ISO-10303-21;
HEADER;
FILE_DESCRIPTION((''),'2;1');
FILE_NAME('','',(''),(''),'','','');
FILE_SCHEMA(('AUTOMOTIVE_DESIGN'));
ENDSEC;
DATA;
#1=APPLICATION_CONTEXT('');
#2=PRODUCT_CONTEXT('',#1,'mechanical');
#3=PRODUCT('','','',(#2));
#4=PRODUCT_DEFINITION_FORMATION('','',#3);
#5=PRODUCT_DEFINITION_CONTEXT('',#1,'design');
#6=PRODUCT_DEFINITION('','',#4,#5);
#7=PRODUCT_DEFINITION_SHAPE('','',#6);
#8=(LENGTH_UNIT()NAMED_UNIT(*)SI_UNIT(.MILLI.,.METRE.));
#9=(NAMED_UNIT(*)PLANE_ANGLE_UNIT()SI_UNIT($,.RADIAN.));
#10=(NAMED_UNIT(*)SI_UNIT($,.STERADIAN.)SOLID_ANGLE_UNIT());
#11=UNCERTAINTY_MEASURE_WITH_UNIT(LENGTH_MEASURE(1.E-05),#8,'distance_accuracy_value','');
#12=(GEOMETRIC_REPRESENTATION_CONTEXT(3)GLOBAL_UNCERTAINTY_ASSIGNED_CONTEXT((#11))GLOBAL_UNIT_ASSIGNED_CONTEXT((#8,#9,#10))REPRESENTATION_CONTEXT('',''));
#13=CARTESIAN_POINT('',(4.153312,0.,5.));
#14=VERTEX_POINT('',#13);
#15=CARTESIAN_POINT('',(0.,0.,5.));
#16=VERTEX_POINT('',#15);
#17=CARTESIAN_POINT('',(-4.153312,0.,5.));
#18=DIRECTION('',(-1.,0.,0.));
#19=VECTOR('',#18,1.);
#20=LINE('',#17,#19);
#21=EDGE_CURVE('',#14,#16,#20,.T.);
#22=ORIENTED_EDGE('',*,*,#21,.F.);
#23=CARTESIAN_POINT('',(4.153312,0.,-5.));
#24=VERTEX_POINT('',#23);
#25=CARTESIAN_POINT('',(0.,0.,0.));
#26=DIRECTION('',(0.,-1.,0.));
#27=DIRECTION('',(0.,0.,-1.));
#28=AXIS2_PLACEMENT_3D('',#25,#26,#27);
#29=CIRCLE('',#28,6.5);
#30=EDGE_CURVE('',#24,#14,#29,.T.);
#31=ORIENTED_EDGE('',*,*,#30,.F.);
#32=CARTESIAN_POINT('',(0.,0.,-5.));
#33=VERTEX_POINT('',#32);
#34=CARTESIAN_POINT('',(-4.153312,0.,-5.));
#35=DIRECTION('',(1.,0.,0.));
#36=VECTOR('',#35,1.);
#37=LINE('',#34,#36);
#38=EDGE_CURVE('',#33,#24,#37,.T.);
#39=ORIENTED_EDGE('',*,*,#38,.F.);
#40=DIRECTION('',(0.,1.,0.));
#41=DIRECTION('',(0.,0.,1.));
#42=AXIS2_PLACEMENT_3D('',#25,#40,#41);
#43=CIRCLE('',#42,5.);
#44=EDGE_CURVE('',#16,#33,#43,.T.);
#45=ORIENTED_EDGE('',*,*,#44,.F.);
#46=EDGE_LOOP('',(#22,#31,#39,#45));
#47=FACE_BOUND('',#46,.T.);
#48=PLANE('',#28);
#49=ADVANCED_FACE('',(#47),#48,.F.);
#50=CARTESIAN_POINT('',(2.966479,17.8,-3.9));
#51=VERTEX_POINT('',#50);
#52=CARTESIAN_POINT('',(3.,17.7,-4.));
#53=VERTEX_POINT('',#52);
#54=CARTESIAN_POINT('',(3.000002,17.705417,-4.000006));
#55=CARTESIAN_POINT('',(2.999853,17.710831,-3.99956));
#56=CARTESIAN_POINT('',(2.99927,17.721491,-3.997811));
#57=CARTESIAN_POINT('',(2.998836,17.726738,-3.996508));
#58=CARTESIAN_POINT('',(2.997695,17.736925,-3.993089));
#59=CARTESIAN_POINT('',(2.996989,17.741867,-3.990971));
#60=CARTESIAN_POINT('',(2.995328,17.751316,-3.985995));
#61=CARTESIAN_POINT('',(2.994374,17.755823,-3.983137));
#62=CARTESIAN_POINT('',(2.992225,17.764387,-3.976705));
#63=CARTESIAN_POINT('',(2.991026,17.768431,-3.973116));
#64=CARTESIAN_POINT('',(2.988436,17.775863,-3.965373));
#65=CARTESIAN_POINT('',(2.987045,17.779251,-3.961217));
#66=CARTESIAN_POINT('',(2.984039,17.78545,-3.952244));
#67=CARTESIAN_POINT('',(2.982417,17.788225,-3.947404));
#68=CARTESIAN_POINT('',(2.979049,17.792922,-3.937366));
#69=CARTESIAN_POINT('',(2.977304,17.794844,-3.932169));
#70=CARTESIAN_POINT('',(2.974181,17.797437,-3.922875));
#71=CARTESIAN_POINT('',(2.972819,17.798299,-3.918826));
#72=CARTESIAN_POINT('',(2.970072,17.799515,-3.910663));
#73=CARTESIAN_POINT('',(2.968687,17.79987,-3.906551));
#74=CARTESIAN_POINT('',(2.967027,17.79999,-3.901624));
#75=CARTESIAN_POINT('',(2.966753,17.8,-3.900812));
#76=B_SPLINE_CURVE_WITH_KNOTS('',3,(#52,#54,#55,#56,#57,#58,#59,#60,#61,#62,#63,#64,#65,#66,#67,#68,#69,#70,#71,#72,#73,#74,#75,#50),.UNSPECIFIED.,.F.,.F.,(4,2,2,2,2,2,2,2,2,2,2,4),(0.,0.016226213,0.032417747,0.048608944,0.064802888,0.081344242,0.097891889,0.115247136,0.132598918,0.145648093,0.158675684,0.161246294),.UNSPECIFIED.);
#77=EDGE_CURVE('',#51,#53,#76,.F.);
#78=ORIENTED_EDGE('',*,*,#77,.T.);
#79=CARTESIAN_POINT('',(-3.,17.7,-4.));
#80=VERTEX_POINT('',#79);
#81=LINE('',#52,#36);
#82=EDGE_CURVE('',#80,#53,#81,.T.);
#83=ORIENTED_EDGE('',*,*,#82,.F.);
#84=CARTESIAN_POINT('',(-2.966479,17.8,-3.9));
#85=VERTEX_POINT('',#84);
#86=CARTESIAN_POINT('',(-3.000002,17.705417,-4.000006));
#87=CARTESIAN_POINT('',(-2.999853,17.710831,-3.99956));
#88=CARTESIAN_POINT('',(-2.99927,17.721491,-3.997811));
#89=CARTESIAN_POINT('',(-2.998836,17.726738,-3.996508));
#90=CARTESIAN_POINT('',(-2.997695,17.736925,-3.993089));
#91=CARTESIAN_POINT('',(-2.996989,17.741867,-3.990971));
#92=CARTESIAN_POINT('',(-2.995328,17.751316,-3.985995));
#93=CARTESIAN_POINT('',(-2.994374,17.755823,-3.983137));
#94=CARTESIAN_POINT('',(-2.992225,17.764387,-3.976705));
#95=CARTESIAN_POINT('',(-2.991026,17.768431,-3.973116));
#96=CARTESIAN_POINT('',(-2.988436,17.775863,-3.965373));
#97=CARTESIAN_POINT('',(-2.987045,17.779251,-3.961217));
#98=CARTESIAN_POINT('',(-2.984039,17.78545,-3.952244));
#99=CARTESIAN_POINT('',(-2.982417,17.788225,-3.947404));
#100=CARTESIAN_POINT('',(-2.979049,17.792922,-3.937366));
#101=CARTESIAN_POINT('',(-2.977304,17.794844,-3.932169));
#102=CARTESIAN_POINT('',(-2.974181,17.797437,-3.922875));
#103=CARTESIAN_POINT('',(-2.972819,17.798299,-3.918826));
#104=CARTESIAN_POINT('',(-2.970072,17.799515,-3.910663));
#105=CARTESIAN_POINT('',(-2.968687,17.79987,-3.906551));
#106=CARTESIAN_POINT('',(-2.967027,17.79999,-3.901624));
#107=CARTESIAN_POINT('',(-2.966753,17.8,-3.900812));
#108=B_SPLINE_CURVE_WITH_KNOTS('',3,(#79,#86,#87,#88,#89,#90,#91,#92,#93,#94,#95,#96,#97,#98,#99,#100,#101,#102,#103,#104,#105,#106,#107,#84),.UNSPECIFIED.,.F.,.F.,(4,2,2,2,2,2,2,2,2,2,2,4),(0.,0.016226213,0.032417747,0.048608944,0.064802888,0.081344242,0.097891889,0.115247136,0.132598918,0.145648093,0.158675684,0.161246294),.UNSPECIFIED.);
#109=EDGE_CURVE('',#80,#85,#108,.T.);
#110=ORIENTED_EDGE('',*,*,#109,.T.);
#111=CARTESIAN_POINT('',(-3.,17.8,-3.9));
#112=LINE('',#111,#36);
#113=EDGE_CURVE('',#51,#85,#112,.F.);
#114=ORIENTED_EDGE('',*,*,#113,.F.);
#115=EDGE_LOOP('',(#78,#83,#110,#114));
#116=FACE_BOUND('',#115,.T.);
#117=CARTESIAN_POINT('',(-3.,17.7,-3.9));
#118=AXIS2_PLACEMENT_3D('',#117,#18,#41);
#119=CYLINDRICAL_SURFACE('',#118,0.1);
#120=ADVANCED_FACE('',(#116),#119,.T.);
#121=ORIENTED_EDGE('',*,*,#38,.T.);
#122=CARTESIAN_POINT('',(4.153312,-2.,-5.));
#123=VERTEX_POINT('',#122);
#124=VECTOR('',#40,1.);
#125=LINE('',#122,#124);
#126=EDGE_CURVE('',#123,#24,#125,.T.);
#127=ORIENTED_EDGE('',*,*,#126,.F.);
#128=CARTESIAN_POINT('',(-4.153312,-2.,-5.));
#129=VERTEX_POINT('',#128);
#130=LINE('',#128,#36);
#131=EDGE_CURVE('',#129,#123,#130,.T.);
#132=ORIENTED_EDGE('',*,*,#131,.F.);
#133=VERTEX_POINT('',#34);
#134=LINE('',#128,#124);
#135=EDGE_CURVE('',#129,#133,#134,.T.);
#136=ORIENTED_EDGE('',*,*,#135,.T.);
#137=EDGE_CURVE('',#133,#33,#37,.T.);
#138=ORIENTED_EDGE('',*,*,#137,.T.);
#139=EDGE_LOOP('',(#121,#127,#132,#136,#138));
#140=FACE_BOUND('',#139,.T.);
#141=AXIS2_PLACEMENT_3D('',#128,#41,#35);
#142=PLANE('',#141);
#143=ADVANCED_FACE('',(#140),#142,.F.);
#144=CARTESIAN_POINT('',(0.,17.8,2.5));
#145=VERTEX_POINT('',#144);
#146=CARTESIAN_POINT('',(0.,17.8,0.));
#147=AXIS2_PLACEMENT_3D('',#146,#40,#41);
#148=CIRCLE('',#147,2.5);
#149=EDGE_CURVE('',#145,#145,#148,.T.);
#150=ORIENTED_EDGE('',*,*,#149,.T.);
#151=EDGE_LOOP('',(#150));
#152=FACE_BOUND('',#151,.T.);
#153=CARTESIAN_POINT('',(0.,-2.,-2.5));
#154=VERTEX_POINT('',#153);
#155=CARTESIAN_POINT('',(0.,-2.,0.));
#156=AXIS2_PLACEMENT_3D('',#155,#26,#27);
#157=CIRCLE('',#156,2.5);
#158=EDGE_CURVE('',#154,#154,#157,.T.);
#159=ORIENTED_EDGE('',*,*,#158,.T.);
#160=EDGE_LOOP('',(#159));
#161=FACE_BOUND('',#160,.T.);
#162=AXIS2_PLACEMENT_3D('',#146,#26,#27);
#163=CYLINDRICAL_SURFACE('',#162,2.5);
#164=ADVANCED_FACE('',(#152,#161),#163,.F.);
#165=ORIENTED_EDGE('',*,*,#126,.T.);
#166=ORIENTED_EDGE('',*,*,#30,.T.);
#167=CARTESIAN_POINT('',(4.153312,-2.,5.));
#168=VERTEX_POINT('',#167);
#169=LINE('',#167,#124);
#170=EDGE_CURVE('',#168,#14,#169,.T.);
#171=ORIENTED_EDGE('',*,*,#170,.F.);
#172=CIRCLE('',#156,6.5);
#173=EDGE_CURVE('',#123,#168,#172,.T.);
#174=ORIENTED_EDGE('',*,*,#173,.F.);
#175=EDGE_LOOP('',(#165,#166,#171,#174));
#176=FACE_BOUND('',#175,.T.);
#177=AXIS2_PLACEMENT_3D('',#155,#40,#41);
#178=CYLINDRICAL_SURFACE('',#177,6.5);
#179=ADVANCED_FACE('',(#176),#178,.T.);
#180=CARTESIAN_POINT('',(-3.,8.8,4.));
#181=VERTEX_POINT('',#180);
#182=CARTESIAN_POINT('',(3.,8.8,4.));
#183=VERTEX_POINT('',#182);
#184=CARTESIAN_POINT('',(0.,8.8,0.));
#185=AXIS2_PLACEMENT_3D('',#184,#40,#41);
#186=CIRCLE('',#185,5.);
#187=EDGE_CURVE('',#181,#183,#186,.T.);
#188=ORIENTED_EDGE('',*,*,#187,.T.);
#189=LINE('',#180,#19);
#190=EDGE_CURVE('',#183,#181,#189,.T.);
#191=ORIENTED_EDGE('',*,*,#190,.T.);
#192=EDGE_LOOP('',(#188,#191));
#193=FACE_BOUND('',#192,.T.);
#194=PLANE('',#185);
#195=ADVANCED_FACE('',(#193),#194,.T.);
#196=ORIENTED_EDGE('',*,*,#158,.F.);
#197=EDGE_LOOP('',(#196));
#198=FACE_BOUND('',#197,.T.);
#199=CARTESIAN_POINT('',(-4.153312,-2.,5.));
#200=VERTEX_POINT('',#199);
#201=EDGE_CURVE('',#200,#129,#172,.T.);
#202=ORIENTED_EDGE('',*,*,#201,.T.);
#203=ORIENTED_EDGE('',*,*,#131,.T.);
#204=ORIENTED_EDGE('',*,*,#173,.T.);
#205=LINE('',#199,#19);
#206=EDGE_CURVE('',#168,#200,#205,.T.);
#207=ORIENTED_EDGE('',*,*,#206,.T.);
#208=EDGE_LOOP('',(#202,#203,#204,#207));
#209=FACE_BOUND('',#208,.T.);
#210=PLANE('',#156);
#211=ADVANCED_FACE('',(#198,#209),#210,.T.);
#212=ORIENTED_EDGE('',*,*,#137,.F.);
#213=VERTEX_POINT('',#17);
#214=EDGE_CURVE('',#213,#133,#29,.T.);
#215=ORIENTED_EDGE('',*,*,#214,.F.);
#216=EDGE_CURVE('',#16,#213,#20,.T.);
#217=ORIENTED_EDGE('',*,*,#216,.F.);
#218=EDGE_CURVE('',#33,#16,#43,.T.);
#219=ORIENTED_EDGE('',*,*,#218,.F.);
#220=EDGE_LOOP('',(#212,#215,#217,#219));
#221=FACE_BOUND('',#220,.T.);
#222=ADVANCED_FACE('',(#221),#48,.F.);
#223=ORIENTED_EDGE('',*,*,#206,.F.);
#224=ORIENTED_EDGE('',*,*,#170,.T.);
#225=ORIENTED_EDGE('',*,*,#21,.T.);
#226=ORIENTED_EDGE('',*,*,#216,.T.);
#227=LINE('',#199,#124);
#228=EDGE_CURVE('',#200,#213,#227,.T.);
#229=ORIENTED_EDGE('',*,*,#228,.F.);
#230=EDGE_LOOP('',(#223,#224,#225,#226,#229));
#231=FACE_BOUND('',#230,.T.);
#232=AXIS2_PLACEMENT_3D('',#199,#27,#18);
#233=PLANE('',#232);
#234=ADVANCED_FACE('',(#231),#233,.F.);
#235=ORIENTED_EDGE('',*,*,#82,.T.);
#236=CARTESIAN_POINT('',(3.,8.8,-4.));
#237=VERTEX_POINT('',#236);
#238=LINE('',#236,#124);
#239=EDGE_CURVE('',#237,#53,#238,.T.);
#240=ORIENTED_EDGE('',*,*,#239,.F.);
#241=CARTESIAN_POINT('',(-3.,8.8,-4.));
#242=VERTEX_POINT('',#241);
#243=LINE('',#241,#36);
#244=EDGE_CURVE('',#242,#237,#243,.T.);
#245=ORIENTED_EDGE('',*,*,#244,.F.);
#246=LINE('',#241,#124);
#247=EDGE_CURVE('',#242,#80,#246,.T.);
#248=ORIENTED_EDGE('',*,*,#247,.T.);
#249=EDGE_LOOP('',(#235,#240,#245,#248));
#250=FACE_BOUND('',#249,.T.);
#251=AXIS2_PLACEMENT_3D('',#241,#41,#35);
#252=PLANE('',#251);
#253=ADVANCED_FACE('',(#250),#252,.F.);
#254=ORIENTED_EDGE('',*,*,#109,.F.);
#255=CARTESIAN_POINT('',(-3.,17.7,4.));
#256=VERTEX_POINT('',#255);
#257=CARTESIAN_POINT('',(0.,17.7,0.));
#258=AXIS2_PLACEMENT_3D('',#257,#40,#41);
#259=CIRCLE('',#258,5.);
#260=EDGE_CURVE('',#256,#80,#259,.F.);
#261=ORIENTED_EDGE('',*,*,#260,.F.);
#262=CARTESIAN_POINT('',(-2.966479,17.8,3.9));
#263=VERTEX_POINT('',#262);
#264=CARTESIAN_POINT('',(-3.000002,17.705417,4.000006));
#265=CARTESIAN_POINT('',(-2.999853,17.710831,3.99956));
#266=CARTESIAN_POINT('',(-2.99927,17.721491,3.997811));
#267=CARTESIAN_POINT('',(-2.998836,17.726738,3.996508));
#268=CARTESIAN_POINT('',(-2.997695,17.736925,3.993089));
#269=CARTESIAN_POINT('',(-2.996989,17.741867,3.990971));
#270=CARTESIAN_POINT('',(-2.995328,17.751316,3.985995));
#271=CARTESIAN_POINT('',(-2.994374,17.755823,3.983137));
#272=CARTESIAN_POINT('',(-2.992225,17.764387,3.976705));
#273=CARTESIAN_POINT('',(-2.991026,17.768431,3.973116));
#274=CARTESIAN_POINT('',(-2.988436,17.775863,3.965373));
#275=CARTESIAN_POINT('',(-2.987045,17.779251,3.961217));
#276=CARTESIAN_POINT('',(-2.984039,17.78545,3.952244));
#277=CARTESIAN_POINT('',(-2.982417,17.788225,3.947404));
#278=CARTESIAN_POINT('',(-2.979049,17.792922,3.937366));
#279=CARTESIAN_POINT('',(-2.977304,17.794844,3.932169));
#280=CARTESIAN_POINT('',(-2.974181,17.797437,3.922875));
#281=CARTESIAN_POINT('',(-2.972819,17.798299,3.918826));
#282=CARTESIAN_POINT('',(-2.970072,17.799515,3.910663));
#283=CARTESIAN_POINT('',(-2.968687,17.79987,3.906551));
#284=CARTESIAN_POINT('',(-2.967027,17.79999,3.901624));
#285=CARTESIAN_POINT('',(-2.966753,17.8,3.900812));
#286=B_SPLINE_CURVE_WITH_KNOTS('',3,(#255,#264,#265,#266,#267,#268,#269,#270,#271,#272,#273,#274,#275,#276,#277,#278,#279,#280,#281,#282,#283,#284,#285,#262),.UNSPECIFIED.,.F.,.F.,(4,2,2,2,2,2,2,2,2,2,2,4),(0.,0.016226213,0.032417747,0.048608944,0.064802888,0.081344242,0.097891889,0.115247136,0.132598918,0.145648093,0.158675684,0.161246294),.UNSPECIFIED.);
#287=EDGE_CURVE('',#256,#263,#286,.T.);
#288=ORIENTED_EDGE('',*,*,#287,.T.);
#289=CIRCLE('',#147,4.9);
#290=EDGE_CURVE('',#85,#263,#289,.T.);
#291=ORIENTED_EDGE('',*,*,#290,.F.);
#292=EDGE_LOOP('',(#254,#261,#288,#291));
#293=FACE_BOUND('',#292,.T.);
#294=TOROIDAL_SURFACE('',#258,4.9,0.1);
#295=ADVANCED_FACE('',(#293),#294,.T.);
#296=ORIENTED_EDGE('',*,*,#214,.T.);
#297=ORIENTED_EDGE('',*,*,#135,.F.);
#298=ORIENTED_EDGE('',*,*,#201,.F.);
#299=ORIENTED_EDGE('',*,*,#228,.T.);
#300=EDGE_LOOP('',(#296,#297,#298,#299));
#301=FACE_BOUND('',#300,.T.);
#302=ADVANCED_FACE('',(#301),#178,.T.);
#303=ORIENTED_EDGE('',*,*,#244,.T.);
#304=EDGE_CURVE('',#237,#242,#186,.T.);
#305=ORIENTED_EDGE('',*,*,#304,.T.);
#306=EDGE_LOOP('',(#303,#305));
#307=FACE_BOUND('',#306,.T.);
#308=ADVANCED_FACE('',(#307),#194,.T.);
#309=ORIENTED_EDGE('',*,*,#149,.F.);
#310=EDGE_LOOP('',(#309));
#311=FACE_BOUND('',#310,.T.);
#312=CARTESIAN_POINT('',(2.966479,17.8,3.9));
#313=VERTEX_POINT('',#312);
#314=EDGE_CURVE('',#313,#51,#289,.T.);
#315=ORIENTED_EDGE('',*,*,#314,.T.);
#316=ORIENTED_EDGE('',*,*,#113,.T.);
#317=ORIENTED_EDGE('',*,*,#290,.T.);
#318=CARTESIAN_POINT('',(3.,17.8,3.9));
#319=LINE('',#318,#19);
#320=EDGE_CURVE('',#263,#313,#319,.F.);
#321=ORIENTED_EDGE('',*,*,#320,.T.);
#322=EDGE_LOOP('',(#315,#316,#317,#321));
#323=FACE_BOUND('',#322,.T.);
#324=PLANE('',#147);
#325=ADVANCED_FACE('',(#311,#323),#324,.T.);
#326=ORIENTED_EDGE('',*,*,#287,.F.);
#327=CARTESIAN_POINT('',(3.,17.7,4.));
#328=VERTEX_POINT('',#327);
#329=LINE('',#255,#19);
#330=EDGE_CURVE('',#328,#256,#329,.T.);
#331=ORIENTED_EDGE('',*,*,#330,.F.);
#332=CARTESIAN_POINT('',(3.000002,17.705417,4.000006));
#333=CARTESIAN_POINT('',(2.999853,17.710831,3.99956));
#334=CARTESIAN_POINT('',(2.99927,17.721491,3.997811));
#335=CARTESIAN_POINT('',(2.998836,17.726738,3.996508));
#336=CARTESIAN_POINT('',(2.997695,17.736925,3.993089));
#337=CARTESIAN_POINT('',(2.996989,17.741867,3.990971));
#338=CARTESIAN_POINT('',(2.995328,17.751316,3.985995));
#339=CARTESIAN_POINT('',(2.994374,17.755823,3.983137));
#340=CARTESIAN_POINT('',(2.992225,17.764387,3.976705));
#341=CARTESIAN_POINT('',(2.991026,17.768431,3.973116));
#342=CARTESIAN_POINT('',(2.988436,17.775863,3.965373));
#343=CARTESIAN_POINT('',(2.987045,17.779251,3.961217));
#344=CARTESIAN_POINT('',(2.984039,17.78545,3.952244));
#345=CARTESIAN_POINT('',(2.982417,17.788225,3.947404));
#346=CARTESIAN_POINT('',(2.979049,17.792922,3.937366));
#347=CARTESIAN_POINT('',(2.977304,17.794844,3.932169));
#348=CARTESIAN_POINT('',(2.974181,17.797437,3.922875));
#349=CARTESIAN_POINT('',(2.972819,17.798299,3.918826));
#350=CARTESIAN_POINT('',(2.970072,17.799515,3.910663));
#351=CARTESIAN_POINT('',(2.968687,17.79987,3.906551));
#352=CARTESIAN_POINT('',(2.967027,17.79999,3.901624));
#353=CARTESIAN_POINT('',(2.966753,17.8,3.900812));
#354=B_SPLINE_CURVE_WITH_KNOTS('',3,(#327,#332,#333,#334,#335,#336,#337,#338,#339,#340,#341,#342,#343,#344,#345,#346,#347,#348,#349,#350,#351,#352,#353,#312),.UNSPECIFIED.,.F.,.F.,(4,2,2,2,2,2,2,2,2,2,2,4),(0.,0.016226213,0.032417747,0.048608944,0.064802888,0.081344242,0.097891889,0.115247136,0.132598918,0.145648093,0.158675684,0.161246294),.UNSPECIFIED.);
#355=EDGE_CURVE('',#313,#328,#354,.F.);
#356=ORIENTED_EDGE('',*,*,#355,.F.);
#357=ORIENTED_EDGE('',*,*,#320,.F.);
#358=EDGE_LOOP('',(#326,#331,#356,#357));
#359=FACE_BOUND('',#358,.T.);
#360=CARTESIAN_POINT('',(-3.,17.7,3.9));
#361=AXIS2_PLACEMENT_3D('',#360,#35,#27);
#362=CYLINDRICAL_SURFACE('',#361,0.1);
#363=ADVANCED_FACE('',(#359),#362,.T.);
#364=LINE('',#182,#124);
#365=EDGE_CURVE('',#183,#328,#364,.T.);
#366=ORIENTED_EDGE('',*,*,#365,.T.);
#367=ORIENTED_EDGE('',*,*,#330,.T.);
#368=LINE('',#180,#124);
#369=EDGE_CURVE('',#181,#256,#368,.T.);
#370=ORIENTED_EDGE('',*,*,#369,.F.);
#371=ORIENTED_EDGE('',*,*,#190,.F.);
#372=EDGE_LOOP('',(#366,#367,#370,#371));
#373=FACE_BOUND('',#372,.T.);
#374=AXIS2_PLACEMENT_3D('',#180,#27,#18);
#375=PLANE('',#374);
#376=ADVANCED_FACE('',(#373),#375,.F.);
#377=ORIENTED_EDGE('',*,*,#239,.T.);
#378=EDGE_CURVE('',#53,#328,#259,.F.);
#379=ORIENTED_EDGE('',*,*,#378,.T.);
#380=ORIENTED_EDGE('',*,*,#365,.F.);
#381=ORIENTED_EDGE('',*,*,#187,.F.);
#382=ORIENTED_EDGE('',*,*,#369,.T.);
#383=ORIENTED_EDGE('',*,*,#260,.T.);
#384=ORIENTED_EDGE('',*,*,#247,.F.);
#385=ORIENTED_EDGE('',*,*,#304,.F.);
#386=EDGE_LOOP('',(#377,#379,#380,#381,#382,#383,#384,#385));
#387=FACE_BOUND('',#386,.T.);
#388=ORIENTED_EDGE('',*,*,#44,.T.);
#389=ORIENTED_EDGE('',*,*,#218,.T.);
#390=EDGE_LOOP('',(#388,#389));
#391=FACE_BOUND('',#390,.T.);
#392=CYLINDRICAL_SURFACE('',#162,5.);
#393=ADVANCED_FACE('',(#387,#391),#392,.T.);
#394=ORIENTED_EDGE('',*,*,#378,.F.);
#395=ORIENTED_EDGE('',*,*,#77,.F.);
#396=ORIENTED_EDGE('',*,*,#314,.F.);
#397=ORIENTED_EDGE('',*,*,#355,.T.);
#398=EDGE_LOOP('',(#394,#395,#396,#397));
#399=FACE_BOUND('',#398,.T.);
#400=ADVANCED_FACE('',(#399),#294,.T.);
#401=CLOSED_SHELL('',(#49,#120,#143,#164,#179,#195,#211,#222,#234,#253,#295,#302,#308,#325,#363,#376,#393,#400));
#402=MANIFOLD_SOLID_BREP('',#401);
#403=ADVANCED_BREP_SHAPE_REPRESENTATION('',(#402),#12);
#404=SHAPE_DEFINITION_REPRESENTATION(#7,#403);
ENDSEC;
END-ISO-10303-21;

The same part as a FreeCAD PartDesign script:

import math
import FreeCAD as App
import Part
import Sketcher

V = App.Vector


def edges_at(feature, points):
    """Names of the edges that pass closest to the given points."""
    edges = feature.Shape.Edges
    near = lambda p: min(range(len(edges)), key=lambda i: edges[i].distToShape(Part.Vertex(*p))[0])
    return sorted({f"Edge{near(p) + 1}" for p in points})

doc = App.newDocument("Part")
body = doc.addObject("PartDesign::Body", "Body")

# Sketch on XZ plane
sketch1 = doc.addObject("Sketcher::SketchObject", "Sketch")
body.addObject(sketch1)
sketch1.AttachmentSupport = (doc.XZ_Plane, [""])
sketch1.MapMode = "FlatFace"
sketch1.addGeometry([
    Part.Circle(V(0, 0, 0), V(0, 0, 1), 5),
    Part.Circle(V(0, 0, 0), V(0, 0, 1), 2.5),
], False)
sketch1.addConstraint([
    Sketcher.Constraint("Coincident", 0, 3, -1, 1),
    Sketcher.Constraint("Coincident", 1, 3, -1, 1),
    Sketcher.Constraint("Diameter", 0, 10.0),
    Sketcher.Constraint("Diameter", 1, 5.0),
])
pad1 = doc.addObject("PartDesign::Pad", "Pad")
body.addObject(pad1)
pad1.Profile = sketch1
pad1.Length = 17.8
pad1.Reversed = True

# Sketch on XZ plane
sketch2 = doc.addObject("Sketcher::SketchObject", "Sketch001")
body.addObject(sketch2)
sketch2.AttachmentSupport = (doc.XZ_Plane, [""])
sketch2.MapMode = "FlatFace"
sketch2.AttachmentOffset = App.Placement(V(0, 0, -17.8), App.Rotation())
sketch2.addGeometry([
    Part.LineSegment(V(3, 4, 0), V(-3, 4, 0)),
    Part.ArcOfCircle(Part.Circle(V(0, 0, 0), V(0, 0, 1), 5), math.radians(53.130102), math.radians(126.869898)),
    Part.LineSegment(V(-3, -4, 0), V(3, -4, 0)),
    Part.ArcOfCircle(Part.Circle(V(0, 0, 0), V(0, 0, 1), 5), math.radians(-126.869898), math.radians(-53.130102)),
], False)
sketch2.addConstraint([
    Sketcher.Constraint("Coincident", 0, 1, 1, 1),
    Sketcher.Constraint("Coincident", 1, 2, 0, 2),
    Sketcher.Constraint("Coincident", 2, 1, 3, 1),
    Sketcher.Constraint("Coincident", 3, 2, 2, 2),
    Sketcher.Constraint("Horizontal", 0),
    Sketcher.Constraint("Horizontal", 2),
    Sketcher.Constraint("Coincident", 1, 3, -1, 1),
    Sketcher.Constraint("Coincident", 3, 3, -1, 1),
    Sketcher.Constraint("Equal", 1, 3),
    Sketcher.Constraint("Vertical", 1, 2, 2, 1),
    Sketcher.Constraint("Radius", 1, 5.0),
    Sketcher.Constraint("DistanceX", 0, 2, 0, 1, 6.0),
])
pocket1 = doc.addObject("PartDesign::Pocket", "Pocket")
body.addObject(pocket1)
pocket1.Profile = sketch2
pocket1.Length = 9
pocket1.Reversed = True

# Sketch on XZ plane
sketch3 = doc.addObject("Sketcher::SketchObject", "Sketch002")
body.addObject(sketch3)
sketch3.AttachmentSupport = (doc.XZ_Plane, [""])
sketch3.MapMode = "FlatFace"
sketch3.addGeometry([
    Part.LineSegment(V(4.153312, 5, 0), V(-4.153312, 5, 0)),  # 0
    Part.ArcOfCircle(Part.Circle(V(0, 0, 0), V(0, 0, 1), 6.5), math.radians(129.715137), math.radians(230.284863)),  # 1
    Part.LineSegment(V(-4.153312, -5, 0), V(4.153312, -5, 0)),  # 2
    Part.ArcOfCircle(Part.Circle(V(0, 0, 0), V(0, 0, 1), 6.5), math.radians(-50.284863), math.radians(50.284863)),  # 3
    Part.Circle(V(0, 0, 0), V(0, 0, 1), 2.5),  # 4
], False)
sketch3.addConstraint([
    Sketcher.Constraint("Coincident", 0, 2, 1, 1),
    Sketcher.Constraint("Coincident", 1, 2, 2, 1),
    Sketcher.Constraint("Coincident", 2, 2, 3, 1),
    Sketcher.Constraint("Coincident", 3, 2, 0, 1),
    Sketcher.Constraint("Horizontal", 0),
    Sketcher.Constraint("Horizontal", 2),
    Sketcher.Constraint("Coincident", 1, 3, -1, 1),
    Sketcher.Constraint("Coincident", 3, 3, -1, 1),
    Sketcher.Constraint("Coincident", 4, 3, -1, 1),
    Sketcher.Constraint("Equal", 1, 3),
    Sketcher.Constraint("Vertical", 0, 2, 1, 2),
    Sketcher.Constraint("Diameter", 4, 5.0),
    Sketcher.Constraint("Radius", 1, 6.5),
    Sketcher.Constraint("DistanceY", -1, 1, 0, 2, 5.0),
])
pad2 = doc.addObject("PartDesign::Pad", "Pad001")
body.addObject(pad2)
pad2.Profile = sketch3
pad2.Length = 2
doc.recompute()

fillet = doc.addObject("PartDesign::Fillet", "Fillet")
body.addObject(fillet)
fillet.Base = (pad2, edges_at(pad2, [
    (0, 17.8, 4),
    (-5, 17.8, 0),
    (0, 17.8, -4),
    (4.472, 17.8, 2.236),
]))
fillet.Radius = 0.1

doc.recompute()
